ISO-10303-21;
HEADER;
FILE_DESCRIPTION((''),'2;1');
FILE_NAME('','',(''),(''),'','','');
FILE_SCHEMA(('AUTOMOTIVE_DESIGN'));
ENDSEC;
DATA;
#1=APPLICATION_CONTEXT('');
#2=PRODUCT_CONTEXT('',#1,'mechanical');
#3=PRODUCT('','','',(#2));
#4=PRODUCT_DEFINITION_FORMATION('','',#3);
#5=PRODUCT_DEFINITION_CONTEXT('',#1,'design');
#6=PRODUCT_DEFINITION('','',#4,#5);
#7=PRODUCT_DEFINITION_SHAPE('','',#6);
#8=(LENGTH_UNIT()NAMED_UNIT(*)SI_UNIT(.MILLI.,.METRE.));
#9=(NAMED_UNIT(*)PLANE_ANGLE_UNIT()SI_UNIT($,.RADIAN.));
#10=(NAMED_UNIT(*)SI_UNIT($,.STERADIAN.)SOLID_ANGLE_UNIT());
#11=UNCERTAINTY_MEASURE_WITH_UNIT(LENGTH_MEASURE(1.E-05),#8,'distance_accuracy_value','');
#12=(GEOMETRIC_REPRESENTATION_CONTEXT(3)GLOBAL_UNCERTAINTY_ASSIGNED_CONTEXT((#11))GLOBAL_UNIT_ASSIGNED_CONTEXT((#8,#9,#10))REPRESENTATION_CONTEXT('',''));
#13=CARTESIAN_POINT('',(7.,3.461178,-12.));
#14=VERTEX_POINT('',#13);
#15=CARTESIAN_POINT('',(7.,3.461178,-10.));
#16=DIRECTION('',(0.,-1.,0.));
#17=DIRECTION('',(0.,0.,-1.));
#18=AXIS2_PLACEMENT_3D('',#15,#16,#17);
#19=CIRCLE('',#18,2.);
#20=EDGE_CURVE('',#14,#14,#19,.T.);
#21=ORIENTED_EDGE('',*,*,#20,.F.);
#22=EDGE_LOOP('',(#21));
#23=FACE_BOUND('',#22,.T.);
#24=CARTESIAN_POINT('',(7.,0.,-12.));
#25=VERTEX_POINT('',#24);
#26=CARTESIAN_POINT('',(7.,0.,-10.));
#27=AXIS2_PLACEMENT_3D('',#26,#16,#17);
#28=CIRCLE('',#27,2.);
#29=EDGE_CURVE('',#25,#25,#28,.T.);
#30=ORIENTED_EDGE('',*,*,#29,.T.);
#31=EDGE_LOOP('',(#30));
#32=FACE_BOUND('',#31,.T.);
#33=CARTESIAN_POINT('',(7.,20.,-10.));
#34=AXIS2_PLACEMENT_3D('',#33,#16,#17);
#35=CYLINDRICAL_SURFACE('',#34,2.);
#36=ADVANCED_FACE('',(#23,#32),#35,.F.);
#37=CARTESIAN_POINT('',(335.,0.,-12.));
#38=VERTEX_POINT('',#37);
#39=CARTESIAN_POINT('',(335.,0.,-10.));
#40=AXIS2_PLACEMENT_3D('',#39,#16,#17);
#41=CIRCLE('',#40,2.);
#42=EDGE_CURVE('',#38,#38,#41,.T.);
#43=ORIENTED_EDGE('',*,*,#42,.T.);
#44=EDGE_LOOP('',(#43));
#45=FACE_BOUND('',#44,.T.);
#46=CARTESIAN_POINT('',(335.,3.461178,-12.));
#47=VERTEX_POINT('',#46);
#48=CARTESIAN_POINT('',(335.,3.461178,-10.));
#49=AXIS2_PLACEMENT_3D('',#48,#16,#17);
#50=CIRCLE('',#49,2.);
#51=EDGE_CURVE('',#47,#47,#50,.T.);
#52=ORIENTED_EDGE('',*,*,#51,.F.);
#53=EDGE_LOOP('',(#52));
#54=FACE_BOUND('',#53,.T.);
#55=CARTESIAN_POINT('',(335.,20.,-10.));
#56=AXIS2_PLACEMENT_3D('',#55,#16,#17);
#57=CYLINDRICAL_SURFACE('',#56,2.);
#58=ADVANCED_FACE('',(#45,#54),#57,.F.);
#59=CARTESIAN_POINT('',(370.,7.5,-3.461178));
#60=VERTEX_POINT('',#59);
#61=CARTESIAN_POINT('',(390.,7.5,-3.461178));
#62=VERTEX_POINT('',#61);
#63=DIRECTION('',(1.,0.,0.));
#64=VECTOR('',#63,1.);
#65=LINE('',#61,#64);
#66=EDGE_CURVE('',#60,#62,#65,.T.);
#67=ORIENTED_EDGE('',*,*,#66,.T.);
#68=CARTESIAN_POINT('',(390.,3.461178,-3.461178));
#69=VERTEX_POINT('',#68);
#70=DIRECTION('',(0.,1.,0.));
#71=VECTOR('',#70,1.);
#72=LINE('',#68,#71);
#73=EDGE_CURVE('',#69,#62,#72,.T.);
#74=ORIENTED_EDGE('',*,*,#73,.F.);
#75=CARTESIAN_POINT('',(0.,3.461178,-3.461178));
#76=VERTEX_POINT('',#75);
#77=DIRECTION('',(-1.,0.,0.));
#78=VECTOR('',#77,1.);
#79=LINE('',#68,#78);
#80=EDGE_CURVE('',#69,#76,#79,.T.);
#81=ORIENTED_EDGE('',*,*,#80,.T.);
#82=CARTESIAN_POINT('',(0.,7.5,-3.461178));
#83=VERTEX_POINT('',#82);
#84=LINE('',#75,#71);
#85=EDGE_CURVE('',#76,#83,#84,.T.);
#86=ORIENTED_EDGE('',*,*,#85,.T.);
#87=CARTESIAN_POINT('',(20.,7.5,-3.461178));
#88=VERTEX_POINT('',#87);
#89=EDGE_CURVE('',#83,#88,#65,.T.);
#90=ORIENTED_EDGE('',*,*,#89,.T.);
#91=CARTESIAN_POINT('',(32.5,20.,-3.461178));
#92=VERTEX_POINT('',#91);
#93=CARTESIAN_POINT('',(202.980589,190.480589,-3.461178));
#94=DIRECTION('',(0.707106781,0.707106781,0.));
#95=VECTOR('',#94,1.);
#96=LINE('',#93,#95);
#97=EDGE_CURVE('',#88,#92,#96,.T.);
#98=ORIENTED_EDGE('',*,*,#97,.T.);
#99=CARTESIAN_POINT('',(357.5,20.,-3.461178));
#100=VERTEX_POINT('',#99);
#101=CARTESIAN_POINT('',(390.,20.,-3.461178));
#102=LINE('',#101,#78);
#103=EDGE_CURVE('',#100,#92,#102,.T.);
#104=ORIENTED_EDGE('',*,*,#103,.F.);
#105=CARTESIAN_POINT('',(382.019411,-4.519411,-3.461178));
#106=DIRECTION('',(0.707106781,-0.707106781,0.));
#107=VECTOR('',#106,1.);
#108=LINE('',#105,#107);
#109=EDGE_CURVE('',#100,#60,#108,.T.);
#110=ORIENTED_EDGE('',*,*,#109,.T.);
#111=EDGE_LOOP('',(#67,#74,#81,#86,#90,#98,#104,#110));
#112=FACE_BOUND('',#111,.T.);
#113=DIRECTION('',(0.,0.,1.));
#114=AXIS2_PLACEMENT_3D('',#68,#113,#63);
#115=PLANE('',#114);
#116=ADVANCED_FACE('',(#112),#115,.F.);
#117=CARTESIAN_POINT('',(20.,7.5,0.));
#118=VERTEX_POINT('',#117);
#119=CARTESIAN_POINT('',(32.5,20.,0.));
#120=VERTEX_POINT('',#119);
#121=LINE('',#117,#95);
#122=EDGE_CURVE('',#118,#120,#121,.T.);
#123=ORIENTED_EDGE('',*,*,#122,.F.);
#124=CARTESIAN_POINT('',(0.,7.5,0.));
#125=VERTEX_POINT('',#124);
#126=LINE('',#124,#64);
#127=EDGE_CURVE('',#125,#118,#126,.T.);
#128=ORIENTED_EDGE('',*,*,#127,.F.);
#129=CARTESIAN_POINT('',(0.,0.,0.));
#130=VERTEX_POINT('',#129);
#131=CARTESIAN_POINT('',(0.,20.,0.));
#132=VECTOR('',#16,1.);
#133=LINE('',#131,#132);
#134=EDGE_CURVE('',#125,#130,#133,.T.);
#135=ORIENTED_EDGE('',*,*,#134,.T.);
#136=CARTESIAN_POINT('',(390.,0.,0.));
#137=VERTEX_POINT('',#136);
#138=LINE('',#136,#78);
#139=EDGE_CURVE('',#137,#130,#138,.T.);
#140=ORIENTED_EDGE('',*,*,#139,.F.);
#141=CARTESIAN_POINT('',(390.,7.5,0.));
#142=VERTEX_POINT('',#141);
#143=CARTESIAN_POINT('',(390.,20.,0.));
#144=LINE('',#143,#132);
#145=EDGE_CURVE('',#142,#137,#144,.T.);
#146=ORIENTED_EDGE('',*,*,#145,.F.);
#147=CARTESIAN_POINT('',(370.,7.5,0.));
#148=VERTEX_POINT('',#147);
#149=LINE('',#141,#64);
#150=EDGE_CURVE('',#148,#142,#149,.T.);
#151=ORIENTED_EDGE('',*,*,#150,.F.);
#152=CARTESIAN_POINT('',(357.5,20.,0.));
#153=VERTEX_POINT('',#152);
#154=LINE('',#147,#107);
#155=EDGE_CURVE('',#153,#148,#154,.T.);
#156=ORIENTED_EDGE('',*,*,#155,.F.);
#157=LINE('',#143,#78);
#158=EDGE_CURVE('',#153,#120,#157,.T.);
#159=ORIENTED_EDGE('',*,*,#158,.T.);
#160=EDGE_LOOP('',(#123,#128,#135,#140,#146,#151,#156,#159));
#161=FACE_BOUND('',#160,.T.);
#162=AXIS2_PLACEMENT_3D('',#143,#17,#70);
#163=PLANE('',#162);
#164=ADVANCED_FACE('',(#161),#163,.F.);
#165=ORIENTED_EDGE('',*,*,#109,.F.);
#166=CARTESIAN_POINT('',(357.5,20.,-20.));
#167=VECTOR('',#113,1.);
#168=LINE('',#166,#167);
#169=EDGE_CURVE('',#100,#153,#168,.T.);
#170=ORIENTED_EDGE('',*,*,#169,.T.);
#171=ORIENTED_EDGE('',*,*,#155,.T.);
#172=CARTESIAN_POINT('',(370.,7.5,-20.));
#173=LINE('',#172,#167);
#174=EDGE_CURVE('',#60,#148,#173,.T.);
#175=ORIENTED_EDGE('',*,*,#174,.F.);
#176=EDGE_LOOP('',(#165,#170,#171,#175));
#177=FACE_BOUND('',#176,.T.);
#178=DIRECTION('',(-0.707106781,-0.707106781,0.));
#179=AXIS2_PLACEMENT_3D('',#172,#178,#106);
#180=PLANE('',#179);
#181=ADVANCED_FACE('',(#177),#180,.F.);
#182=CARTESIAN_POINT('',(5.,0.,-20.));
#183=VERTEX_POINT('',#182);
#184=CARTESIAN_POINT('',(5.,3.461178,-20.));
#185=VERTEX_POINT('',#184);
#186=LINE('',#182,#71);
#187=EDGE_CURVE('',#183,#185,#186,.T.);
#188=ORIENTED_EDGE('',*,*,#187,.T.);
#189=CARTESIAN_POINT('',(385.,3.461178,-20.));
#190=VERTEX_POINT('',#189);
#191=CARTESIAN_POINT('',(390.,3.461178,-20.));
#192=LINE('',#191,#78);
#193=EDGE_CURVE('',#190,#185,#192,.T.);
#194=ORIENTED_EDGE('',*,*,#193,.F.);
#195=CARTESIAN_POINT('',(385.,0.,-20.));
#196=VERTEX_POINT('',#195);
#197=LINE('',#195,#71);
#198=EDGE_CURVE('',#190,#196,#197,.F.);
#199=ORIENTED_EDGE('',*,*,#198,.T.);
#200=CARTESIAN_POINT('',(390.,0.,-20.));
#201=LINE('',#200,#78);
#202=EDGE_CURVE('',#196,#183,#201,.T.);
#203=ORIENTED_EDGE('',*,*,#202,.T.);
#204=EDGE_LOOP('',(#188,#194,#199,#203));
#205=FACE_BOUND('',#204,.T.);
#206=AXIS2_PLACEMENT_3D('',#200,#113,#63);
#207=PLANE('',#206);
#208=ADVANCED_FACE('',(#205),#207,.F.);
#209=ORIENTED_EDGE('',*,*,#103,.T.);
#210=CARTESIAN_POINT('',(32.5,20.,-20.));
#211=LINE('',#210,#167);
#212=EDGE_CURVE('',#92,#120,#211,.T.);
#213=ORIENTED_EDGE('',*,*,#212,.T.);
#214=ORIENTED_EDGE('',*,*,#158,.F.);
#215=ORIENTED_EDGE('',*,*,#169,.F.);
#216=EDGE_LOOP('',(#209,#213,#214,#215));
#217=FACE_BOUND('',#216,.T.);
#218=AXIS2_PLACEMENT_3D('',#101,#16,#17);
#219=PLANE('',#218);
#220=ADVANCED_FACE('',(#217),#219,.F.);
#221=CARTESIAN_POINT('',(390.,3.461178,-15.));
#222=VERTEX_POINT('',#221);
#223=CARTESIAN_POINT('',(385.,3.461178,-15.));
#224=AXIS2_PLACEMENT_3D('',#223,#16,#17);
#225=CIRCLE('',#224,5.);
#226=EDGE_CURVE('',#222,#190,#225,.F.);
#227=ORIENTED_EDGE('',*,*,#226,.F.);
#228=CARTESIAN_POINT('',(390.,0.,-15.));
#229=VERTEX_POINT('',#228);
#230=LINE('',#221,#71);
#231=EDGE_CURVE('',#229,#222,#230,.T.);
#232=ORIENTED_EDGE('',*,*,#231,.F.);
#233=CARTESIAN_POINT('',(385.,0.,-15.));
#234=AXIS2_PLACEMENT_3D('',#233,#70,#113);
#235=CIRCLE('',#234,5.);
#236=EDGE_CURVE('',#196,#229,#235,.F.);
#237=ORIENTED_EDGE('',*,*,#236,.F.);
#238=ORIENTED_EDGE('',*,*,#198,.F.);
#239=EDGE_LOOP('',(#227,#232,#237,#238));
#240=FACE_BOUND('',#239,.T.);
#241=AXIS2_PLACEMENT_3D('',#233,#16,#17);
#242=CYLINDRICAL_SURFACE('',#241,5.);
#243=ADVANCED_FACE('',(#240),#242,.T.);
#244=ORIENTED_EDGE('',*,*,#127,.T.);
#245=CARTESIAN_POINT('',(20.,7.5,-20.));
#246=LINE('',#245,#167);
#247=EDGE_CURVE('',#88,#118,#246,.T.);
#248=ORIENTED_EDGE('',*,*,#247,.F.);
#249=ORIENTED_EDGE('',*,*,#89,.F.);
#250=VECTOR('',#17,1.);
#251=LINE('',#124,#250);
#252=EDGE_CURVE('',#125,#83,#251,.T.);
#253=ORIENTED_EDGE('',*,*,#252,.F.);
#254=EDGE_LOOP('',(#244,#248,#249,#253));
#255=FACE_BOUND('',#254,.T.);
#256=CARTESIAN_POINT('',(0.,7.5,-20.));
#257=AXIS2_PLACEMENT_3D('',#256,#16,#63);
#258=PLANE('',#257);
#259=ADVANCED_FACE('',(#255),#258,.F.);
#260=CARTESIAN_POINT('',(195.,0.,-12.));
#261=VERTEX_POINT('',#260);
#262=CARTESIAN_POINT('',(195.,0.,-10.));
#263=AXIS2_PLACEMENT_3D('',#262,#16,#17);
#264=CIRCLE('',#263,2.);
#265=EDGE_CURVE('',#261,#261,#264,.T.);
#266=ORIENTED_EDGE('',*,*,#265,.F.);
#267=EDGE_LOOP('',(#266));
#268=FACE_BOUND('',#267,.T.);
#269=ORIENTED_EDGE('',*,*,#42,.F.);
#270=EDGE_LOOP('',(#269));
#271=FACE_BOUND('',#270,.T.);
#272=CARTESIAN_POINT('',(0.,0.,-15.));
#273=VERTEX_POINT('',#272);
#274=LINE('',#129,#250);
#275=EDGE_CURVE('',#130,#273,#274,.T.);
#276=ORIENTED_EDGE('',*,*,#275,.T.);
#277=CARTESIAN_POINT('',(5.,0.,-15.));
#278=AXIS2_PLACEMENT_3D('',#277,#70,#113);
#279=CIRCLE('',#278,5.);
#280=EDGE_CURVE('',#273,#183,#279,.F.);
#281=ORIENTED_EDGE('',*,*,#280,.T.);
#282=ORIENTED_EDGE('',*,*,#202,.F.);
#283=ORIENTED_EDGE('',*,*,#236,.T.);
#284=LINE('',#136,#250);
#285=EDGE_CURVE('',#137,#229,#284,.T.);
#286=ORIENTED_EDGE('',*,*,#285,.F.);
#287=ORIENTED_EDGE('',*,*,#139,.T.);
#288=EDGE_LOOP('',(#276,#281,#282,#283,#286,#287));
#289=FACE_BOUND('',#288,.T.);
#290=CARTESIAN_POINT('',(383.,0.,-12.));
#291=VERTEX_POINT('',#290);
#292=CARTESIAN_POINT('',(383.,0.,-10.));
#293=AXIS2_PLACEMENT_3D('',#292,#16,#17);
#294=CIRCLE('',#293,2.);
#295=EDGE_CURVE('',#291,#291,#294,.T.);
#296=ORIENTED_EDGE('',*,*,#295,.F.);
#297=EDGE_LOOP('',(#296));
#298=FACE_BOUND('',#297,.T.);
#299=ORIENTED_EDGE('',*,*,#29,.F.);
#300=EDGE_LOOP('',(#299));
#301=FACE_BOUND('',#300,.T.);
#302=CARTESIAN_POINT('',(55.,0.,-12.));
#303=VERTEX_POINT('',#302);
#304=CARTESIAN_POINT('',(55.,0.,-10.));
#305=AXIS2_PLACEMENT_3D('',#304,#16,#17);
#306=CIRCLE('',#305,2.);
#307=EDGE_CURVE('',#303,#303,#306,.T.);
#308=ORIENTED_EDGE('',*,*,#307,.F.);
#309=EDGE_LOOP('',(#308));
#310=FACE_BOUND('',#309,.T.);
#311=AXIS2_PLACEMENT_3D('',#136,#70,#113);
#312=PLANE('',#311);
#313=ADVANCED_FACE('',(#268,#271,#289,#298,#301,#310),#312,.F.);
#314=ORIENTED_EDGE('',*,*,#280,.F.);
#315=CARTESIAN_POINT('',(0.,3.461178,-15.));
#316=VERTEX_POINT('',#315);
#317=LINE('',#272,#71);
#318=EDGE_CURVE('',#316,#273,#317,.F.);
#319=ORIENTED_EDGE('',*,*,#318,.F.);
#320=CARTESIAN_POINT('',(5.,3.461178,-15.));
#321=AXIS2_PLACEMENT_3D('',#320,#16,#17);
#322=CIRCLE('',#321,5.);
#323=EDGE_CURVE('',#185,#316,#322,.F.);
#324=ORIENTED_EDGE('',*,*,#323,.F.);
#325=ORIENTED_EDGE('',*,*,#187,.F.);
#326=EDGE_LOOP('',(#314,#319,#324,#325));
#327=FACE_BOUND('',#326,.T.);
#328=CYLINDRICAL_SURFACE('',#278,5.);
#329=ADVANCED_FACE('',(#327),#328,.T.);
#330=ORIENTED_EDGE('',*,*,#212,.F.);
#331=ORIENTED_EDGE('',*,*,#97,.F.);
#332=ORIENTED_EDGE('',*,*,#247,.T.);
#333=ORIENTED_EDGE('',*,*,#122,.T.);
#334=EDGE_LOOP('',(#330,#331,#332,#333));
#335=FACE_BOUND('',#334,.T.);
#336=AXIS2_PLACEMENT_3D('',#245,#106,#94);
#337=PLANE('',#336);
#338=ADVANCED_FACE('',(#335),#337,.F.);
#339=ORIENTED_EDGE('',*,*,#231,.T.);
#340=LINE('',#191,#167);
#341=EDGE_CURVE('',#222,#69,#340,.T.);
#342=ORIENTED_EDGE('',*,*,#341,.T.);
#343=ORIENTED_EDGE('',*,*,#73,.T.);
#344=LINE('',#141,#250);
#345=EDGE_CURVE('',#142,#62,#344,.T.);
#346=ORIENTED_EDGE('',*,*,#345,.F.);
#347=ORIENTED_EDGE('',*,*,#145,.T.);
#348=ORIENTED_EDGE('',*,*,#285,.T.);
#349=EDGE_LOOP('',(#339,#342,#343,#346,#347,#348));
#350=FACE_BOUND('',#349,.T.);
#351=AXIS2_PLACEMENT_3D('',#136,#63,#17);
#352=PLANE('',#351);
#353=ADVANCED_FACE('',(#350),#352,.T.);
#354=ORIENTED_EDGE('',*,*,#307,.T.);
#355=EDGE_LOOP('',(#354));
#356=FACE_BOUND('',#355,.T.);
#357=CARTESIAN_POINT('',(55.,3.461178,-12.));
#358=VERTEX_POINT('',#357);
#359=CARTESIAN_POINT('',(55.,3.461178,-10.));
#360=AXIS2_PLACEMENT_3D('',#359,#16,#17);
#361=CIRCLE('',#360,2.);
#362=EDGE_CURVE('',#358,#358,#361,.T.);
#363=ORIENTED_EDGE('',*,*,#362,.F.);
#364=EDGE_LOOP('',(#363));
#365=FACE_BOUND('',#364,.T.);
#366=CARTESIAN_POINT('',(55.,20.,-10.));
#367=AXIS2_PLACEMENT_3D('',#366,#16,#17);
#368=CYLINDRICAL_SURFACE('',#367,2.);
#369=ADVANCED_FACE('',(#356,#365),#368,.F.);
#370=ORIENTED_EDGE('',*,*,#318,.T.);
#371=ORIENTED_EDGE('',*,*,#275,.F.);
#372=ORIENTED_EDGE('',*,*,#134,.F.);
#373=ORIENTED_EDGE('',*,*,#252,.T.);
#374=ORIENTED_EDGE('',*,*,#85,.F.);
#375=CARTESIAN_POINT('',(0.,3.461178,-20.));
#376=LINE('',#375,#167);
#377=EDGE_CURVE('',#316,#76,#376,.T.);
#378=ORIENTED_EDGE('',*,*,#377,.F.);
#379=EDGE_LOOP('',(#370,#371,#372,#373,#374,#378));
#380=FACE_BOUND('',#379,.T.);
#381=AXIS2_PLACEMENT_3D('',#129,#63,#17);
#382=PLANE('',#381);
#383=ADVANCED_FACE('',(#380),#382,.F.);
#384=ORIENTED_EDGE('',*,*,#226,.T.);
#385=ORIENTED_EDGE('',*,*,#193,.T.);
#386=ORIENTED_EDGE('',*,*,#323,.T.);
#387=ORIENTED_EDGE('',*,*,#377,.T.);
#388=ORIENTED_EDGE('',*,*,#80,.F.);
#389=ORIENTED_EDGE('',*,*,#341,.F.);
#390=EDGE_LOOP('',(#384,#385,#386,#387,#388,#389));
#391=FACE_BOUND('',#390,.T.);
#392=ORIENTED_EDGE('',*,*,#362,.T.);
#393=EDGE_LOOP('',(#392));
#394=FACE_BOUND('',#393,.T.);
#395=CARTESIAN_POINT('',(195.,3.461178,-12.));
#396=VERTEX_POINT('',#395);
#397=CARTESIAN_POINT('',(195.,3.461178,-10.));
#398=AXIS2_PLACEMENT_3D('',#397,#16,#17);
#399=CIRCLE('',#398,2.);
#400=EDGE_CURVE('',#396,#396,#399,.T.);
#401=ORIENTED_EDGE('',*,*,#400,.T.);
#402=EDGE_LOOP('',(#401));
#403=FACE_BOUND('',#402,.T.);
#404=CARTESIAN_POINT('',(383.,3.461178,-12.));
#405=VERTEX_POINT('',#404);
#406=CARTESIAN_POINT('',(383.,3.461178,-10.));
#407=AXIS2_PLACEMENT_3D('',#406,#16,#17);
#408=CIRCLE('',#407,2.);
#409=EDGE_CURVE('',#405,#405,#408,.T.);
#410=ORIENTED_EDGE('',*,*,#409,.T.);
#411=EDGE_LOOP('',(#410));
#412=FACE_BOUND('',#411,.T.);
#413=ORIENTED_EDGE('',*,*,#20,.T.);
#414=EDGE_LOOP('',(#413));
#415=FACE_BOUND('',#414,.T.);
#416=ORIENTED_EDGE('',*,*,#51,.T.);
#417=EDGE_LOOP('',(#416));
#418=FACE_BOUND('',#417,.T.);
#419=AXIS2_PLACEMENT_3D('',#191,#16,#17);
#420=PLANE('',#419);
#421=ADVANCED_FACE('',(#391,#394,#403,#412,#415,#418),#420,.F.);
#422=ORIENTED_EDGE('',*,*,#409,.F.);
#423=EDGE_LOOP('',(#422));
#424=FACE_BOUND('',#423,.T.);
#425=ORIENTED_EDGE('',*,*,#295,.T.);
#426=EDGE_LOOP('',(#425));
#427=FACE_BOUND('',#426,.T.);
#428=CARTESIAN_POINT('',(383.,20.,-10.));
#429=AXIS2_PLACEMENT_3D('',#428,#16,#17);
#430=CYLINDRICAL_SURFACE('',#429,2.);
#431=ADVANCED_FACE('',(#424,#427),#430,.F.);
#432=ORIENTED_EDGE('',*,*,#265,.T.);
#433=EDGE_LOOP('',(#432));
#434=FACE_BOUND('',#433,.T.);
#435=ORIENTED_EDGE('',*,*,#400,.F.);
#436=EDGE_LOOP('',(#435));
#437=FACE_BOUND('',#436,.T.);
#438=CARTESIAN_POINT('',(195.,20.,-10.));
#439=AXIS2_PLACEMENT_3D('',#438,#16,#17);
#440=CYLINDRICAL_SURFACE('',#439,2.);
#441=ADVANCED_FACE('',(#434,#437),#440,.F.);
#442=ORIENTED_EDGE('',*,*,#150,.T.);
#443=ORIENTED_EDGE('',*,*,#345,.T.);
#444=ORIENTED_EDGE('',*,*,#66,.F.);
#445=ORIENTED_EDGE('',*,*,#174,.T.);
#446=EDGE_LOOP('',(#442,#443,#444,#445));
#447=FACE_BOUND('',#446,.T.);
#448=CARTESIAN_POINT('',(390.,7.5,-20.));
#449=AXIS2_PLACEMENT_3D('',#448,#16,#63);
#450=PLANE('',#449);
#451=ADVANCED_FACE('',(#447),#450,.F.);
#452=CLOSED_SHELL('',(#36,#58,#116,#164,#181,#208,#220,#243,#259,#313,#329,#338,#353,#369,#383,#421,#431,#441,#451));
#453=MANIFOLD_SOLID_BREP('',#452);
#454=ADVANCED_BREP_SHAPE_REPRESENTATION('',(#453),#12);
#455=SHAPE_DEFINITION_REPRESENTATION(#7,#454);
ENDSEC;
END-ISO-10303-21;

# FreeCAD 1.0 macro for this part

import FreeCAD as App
import Part
import Sketcher

V = App.Vector


def edges_at(feature, points):
    """Names of the edges that pass closest to the given points."""
    edges = feature.Shape.Edges
    near = lambda p: min(range(len(edges)), key=lambda i: edges[i].distToShape(Part.Vertex(*p))[0])
    return sorted({f"Edge{near(p) + 1}" for p in points})

doc = App.newDocument("Part")
params = doc.addObject("Spreadsheet::Sheet", "Params")
for row, (alias, value) in enumerate([
    ("sketch1_width", "20 mm"),
    ("pad1_length", "390 mm"),
    ("sketch2_diameter", "4 mm"),
    ("sketch3_width", "20 mm"),
    ("sketch3_width2", "32.5 mm"),
    ("fillet_radius", "5 mm"),
], start=1):
    params.set(f"A{row}", alias)
    params.set(f"B{row}", "=" + value)
    params.setAlias(f"B{row}", alias)

body = doc.addObject("PartDesign::Body", "Body")

sketch1 = body.newObject("Sketcher::SketchObject", "Sketch")
sketch1.AttachmentSupport = (doc.getObject("YZ_Plane"), [""])
sketch1.MapMode = "FlatFace"
sketch1.addGeometry([
    Part.LineSegment(V(0, 0, 0), V(0, -20, 0)),
    Part.LineSegment(V(0, -20, 0), V(3.5, -20, 0)),
    Part.LineSegment(V(3.5, -20, 0), V(3.5, -3.5, 0)),
    Part.LineSegment(V(3.5, -3.5, 0), V(20, -3.5, 0)),
    Part.LineSegment(V(20, -3.5, 0), V(20, 0, 0)),
    Part.LineSegment(V(20, 0, 0), V(0, 0, 0)),
], False)
sketch1.addConstraint([
    Sketcher.Constraint("Coincident", 0, 2, 1, 1),
    Sketcher.Constraint("Coincident", 1, 2, 2, 1),
    Sketcher.Constraint("Coincident", 2, 2, 3, 1),
    Sketcher.Constraint("Coincident", 3, 2, 4, 1),
    Sketcher.Constraint("Coincident", 4, 2, 5, 1),
    Sketcher.Constraint("Coincident", 5, 2, 0, 1),
    Sketcher.Constraint("Vertical", 0),
    Sketcher.Constraint("Horizontal", 1),
    Sketcher.Constraint("Vertical", 2),
    Sketcher.Constraint("Horizontal", 3),
    Sketcher.Constraint("Vertical", 4),
    Sketcher.Constraint("Horizontal", 5),
    Sketcher.Constraint("Coincident", 5, 2, -1, 1),
    Sketcher.Constraint("Equal", 5, 0),
    Sketcher.Constraint("Equal", 3, 2),
    Sketcher.Constraint("DistanceX", 5, 2, 5, 1, 20.0),
    Sketcher.Constraint("DistanceX", 1, 1, 1, 2, 3.461178),
])
sketch1.setExpression("Constraints[15]", "Params.sketch1_width")
pad1 = body.newObject("PartDesign::Pad", "Pad")
pad1.Profile = sketch1
pad1.setExpression("Length", "Params.pad1_length")

sketch2 = body.newObject("Sketcher::SketchObject", "Sketch001")
sketch2.AttachmentSupport = (doc.getObject("XZ_Plane"), [""])
sketch2.MapMode = "FlatFace"
sketch2.addGeometry([
    Part.Circle(V(195, -10, 0), V(0, 0, 1), 2),
    Part.Circle(V(335, -10, 0), V(0, 0, 1), 2),
    Part.Circle(V(55, -10, 0), V(0, 0, 1), 2),
    Part.Circle(V(383, -10, 0), V(0, 0, 1), 2),
    Part.Circle(V(7, -10, 0), V(0, 0, 1), 2),
], False)
sketch2.addConstraint([
    Sketcher.Constraint("Equal", 0, 1),
    Sketcher.Constraint("Equal", 1, 2),
    Sketcher.Constraint("Equal", 2, 3),
    Sketcher.Constraint("Equal", 3, 4),
    Sketcher.Constraint("Horizontal", 0, 3, 1, 3),
    Sketcher.Constraint("Horizontal", 1, 3, 2, 3),
    Sketcher.Constraint("Horizontal", 2, 3, 3, 3),
    Sketcher.Constraint("Horizontal", 3, 3, 4, 3),
    Sketcher.Constraint("Diameter", 0, 4.0),
    Sketcher.Constraint("DistanceX", -1, 1, 0, 3, 195.0),
    Sketcher.Constraint("DistanceY", 0, 3, -1, 1, 10.0),
    Sketcher.Constraint("DistanceX", -1, 1, 1, 3, 335.0),
    Sketcher.Constraint("DistanceX", -1, 1, 2, 3, 55.0),
    Sketcher.Constraint("DistanceX", -1, 1, 3, 3, 383.0),
    Sketcher.Constraint("DistanceX", -1, 1, 4, 3, 7.0),
])
sketch2.setExpression("Constraints[8]", "Params.sketch2_diameter")
pocket1 = body.newObject("PartDesign::Pocket", "Pocket")
pocket1.Profile = sketch2
pocket1.Type = "ThroughAll"

sketch3 = body.newObject("Sketcher::SketchObject", "Sketch002")
sketch3.AttachmentSupport = (doc.getObject("XY_Plane"), [""])
sketch3.MapMode = "FlatFace"
sketch3.addGeometry([
    Part.LineSegment(V(0, 8, 0), V(20, 8, 0)),
    Part.LineSegment(V(20, 8, 0), V(32, 20, 0)),
    Part.LineSegment(V(32, 20, 0), V(0, 20, 0)),
    Part.LineSegment(V(0, 20, 0), V(0, 8, 0)),
    Part.LineSegment(V(390, 20, 0), V(358, 20, 0)),
    Part.LineSegment(V(358, 20, 0), V(370, 8, 0)),
    Part.LineSegment(V(370, 8, 0), V(390, 8, 0)),
    Part.LineSegment(V(390, 8, 0), V(390, 20, 0)),
], False)
sketch3.addConstraint([
    Sketcher.Constraint("Coincident", 0, 2, 1, 1),
    Sketcher.Constraint("Coincident", 1, 2, 2, 1),
    Sketcher.Constraint("Coincident", 2, 2, 3, 1),
    Sketcher.Constraint("Coincident", 3, 2, 0, 1),
    Sketcher.Constraint("Coincident", 4, 2, 5, 1),
    Sketcher.Constraint("Coincident", 5, 2, 6, 1),
    Sketcher.Constraint("Coincident", 6, 2, 7, 1),
    Sketcher.Constraint("Coincident", 7, 2, 4, 1),
    Sketcher.Constraint("Horizontal", 0),
    Sketcher.Constraint("Horizontal", 2),
    Sketcher.Constraint("Vertical", 3),
    Sketcher.Constraint("Horizontal", 4),
    Sketcher.Constraint("Horizontal", 6),
    Sketcher.Constraint("Vertical", 7),
    Sketcher.Constraint("PointOnObject", 2, 2, -2),
    Sketcher.Constraint("Perpendicular", 1, 5),
    Sketcher.Constraint("Horizontal", 2, 2, 4, 2),
    Sketcher.Constraint("Horizontal", 3, 2, 5, 2),
    Sketcher.Constraint("Equal", 2, 4),
    Sketcher.Constraint("Equal", 0, 6),
    Sketcher.Constraint("DistanceX", 0, 1, 0, 2, 20.0),
    Sketcher.Constraint("DistanceX", 2, 2, 2, 1, 32.5),
    Sketcher.Constraint("DistanceY", -1, 1, 1, 2, 20.0),
    Sketcher.Constraint("DistanceX", -1, 1, 5, 2, 370.0),
])
sketch3.setExpression("Constraints[20]", "Params.sketch3_width")
sketch3.setExpression("Constraints[21]", "Params.sketch3_width2")
pocket2 = body.newObject("PartDesign::Pocket", "Pocket001")
pocket2.Profile = sketch3
pocket2.Type = "ThroughAll"
doc.recompute()

fillet = body.newObject("PartDesign::Fillet", "Fillet")
fillet.Base = (pocket2, edges_at(pocket2, [(390, 1.731, -20), (0, 1.731, -20)]))
fillet.setExpression("Radius", "Params.fillet_radius")

doc.recompute()
